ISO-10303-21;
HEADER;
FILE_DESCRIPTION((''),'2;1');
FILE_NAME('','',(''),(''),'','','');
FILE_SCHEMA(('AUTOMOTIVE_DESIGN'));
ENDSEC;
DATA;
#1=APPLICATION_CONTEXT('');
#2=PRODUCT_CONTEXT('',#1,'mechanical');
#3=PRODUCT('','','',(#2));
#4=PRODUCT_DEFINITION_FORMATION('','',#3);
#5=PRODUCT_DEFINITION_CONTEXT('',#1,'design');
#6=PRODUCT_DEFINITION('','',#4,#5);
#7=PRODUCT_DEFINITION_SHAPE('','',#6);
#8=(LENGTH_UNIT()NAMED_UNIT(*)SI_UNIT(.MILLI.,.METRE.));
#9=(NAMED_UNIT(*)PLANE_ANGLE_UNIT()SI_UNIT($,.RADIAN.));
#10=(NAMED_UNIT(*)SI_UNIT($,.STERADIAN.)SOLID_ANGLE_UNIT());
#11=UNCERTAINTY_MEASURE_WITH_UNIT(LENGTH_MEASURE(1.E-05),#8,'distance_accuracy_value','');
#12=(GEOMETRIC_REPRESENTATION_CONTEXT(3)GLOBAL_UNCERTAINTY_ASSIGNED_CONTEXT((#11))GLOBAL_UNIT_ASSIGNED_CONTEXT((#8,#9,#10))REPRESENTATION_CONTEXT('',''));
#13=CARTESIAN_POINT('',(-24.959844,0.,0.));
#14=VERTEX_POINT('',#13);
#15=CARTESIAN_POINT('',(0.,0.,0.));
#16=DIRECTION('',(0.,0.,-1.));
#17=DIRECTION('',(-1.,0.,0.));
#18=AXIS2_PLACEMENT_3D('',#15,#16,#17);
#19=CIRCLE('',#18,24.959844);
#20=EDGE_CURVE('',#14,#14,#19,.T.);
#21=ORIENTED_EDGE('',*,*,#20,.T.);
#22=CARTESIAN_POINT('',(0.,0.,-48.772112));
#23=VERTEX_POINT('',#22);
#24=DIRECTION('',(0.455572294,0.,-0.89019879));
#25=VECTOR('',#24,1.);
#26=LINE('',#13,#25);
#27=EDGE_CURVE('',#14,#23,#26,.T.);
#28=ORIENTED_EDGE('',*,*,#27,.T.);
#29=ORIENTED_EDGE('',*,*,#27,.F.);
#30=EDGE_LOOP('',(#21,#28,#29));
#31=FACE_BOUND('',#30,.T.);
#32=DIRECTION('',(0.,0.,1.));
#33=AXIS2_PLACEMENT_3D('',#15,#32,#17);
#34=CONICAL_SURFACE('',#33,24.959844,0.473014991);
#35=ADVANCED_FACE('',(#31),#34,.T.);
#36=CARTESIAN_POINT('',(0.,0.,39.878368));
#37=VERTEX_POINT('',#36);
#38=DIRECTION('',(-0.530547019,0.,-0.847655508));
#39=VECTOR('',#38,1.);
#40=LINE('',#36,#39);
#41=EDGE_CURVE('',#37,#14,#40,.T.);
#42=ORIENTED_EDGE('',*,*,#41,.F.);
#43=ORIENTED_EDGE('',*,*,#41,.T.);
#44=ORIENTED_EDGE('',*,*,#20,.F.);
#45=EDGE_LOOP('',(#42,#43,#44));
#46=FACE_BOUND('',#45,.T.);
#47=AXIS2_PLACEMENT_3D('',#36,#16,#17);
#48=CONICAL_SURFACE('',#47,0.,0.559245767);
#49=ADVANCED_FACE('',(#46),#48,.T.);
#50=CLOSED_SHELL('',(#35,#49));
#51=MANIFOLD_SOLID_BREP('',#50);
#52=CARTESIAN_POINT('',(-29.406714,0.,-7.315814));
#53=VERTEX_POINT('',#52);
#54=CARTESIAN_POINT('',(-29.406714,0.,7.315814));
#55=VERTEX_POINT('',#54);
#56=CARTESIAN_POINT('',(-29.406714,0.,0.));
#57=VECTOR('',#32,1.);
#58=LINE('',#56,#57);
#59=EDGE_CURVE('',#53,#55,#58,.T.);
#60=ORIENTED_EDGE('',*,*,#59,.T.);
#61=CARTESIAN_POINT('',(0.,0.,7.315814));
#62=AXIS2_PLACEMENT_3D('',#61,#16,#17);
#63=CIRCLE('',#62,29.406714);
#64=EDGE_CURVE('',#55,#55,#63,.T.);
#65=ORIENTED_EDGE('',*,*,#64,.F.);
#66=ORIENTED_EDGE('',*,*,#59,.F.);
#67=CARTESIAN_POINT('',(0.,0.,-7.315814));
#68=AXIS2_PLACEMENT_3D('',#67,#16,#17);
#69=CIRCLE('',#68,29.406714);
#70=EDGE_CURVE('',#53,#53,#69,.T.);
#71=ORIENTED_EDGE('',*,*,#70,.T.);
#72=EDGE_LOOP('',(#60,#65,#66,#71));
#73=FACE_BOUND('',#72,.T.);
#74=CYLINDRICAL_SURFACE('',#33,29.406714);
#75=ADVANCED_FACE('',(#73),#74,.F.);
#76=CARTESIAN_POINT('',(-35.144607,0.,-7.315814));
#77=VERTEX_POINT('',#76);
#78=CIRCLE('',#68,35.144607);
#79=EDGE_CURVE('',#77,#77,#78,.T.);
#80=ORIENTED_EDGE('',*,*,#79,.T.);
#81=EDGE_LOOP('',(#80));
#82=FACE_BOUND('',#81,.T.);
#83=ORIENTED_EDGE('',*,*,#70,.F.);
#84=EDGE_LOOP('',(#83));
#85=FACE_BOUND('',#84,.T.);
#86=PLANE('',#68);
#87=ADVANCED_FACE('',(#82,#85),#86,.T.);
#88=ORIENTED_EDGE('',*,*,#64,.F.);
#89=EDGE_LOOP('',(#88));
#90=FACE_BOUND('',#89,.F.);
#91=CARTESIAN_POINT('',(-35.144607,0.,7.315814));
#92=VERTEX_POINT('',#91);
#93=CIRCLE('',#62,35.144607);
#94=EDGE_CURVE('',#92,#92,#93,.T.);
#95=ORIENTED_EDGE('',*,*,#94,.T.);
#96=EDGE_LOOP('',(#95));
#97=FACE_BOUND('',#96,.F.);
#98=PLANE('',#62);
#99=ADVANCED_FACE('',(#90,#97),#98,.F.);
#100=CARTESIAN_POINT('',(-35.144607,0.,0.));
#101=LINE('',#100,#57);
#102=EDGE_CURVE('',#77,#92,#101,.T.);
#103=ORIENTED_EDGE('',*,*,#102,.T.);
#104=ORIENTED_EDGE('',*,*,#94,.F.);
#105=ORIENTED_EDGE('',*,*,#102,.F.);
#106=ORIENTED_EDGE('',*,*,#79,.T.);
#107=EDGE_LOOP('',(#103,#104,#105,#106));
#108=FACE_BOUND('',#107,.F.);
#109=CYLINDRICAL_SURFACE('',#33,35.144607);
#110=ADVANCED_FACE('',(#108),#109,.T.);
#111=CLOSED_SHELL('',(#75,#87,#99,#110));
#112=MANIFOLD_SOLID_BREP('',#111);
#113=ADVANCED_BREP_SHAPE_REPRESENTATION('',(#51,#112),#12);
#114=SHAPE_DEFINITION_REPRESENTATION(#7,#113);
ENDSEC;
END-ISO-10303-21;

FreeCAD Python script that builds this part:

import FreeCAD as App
import Part
import Sketcher

V = App.Vector
Q = App.Units.Quantity


def add_polygon(sketch, points):
    """Adds a closed chain of lines whose ends are joined by coincident constraints."""
    first, n = sketch.GeometryCount, len(points)
    for a, b in zip(points, points[1:] + points[:1]):
        sketch.addGeometry(Part.LineSegment(App.Vector(*a, 0), App.Vector(*b, 0)), False)
    for i in range(n):
        sketch.addConstraint(Sketcher.Constraint("Coincident", first + i, 2, first + (i + 1) % n, 1))

doc = App.newDocument("Part")
body = doc.addObject("PartDesign::Body", "Body")

# Sketch on XZ plane
sketch1 = body.newObject("Sketcher::SketchObject", "Sketch")
sketch1.AttachmentSupport = (doc.getObject("XZ_Plane"), [""])
sketch1.MapMode = "FlatFace"
add_polygon(sketch1, [(0, -48.772112), (0, 39.878368), (-24.959844, 0)])  # lines 0-2
sketch1.addConstraint([
    Sketcher.Constraint("Vertical", 0),
    Sketcher.Constraint("PointOnObject", 0, 2, -2),
    Sketcher.Constraint("PointOnObject", 1, 2, -1),
    Sketcher.Constraint("DistanceY", 0, 1, 0, 2, Q("88.65048 mm")),
    Sketcher.Constraint("Distance", 1, Q("47.045489 mm")),
    Sketcher.Constraint("Distance", 2, Q("54.787888 mm")),
])
revolution = body.newObject("PartDesign::Revolution", "Revolution")
revolution.Profile = sketch1
revolution.ReferenceAxis = (sketch1, ["V_Axis"])
revolution.Angle = 360
body2 = doc.addObject("PartDesign::Body", "Body001")

# Sketch on XZ plane
sketch2 = body2.newObject("Sketcher::SketchObject", "Sketch001")
sketch2.AttachmentSupport = (doc.getObject("XZ_Plane001"), [""])
sketch2.MapMode = "FlatFace"
add_polygon(sketch2, [(-35.144607, 7.315814), (-35.144607, -7.315814), (-29.406714, -7.315814), (-29.406714, 7.315814)])  # lines 0-3
sketch2.addConstraint([
    Sketcher.Constraint("Vertical", 0),
    Sketcher.Constraint("Horizontal", 1),
    Sketcher.Constraint("Vertical", 2),
    Sketcher.Constraint("Horizontal", 3),
    Sketcher.Constraint("DistanceX", 1, 1, 1, 2, Q("5.737893 mm")),
    Sketcher.Constraint("DistanceY", 0, 2, 0, 1, Q("14.631628 mm")),
    Sketcher.Constraint("DistanceX", 0, 2, -1, 1, Q("35.144607 mm")),
    Sketcher.Constraint("DistanceY", 0, 2, -1, 1, Q("7.315814 mm")),
])
revolution2 = body2.newObject("PartDesign::Revolution", "Revolution001")
revolution2.Profile = sketch2
revolution2.ReferenceAxis = (sketch2, ["V_Axis"])
revolution2.Angle = 360

doc.recompute()
